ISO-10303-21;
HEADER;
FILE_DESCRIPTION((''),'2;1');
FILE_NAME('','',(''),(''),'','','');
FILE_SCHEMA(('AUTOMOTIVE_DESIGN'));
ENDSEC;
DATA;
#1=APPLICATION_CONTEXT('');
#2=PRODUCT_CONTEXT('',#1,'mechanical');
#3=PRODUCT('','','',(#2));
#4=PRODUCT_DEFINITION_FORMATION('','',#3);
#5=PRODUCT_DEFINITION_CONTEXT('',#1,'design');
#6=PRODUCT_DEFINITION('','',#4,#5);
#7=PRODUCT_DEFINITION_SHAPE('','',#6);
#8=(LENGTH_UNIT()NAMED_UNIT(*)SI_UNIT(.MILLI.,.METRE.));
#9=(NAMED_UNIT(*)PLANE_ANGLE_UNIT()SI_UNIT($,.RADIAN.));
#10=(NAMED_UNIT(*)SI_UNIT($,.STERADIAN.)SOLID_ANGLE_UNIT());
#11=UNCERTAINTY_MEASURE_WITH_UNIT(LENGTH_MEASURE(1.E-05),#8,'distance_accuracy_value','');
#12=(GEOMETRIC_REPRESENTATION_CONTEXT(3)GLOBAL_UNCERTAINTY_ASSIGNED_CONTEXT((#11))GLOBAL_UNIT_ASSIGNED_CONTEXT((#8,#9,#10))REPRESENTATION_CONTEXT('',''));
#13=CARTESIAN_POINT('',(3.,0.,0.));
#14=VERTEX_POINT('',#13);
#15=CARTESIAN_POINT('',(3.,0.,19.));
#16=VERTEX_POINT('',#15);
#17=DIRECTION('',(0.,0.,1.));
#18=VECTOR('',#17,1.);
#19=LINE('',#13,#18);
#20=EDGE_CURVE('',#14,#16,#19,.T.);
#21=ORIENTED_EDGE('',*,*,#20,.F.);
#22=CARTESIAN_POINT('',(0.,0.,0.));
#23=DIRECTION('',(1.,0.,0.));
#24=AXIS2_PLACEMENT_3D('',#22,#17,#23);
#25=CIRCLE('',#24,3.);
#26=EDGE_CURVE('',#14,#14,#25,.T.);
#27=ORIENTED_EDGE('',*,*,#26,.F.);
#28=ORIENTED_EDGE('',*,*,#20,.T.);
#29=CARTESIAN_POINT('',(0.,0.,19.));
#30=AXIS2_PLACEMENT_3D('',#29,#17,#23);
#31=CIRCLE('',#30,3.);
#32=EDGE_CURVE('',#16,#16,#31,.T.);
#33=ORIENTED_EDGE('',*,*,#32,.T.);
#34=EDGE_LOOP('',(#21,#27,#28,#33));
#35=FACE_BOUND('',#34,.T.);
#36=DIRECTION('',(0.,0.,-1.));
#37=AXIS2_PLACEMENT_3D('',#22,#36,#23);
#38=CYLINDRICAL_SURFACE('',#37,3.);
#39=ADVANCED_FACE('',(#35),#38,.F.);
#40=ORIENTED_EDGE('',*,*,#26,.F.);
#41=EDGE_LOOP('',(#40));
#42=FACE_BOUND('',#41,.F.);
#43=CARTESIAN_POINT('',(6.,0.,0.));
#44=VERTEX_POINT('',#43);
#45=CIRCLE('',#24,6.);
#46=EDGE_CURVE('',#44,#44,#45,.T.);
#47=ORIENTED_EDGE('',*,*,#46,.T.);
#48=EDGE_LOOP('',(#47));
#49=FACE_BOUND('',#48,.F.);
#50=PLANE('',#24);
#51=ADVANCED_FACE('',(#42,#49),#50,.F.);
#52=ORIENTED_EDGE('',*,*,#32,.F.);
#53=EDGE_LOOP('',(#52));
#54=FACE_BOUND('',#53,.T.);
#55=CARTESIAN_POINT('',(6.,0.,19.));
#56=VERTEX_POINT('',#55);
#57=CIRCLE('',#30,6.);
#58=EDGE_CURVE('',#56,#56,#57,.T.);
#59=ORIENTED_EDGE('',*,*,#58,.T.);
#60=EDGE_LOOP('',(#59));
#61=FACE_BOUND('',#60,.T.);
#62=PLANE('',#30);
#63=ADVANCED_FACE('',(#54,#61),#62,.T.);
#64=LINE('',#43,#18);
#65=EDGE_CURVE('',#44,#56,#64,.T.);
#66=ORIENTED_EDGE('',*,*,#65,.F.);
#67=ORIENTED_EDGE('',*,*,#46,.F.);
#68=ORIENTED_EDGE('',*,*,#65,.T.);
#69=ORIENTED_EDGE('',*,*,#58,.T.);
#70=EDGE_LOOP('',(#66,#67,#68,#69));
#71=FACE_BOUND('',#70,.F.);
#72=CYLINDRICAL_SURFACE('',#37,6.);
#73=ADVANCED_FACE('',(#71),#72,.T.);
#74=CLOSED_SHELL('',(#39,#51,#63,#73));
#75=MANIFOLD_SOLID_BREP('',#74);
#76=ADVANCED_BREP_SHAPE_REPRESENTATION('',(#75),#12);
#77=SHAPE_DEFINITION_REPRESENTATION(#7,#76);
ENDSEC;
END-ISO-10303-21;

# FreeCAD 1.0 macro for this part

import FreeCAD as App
import Part
import Sketcher

V = App.Vector

doc = App.newDocument("Part")
body = doc.addObject("PartDesign::Body", "Body")

# Sketch on XY plane
sketch1 = body.newObject("Sketcher::SketchObject", "Sketch")
sketch1.AttachmentSupport = (doc.getObject("XY_Plane"), [""])
sketch1.MapMode = "FlatFace"
sketch1.addGeometry(Part.Circle(V(0, 0, 0), V(0, 0, 1), 6), False)
sketch1.addGeometry(Part.Circle(V(0, 0, 0), V(0, 0, 1), 3), False)
sketch1.addConstraint(Sketcher.Constraint("Coincident", 0, 3, -1, 1))
sketch1.addConstraint(Sketcher.Constraint("Coincident", 1, 3, -1, 1))
sketch1.addConstraint(Sketcher.Constraint("Diameter", 0, 12.0))
sketch1.addConstraint(Sketcher.Constraint("Diameter", 1, 6.0))
pad1 = body.newObject("PartDesign::Pad", "Pad")
pad1.Profile = sketch1
pad1.Length = 19

doc.recompute()
